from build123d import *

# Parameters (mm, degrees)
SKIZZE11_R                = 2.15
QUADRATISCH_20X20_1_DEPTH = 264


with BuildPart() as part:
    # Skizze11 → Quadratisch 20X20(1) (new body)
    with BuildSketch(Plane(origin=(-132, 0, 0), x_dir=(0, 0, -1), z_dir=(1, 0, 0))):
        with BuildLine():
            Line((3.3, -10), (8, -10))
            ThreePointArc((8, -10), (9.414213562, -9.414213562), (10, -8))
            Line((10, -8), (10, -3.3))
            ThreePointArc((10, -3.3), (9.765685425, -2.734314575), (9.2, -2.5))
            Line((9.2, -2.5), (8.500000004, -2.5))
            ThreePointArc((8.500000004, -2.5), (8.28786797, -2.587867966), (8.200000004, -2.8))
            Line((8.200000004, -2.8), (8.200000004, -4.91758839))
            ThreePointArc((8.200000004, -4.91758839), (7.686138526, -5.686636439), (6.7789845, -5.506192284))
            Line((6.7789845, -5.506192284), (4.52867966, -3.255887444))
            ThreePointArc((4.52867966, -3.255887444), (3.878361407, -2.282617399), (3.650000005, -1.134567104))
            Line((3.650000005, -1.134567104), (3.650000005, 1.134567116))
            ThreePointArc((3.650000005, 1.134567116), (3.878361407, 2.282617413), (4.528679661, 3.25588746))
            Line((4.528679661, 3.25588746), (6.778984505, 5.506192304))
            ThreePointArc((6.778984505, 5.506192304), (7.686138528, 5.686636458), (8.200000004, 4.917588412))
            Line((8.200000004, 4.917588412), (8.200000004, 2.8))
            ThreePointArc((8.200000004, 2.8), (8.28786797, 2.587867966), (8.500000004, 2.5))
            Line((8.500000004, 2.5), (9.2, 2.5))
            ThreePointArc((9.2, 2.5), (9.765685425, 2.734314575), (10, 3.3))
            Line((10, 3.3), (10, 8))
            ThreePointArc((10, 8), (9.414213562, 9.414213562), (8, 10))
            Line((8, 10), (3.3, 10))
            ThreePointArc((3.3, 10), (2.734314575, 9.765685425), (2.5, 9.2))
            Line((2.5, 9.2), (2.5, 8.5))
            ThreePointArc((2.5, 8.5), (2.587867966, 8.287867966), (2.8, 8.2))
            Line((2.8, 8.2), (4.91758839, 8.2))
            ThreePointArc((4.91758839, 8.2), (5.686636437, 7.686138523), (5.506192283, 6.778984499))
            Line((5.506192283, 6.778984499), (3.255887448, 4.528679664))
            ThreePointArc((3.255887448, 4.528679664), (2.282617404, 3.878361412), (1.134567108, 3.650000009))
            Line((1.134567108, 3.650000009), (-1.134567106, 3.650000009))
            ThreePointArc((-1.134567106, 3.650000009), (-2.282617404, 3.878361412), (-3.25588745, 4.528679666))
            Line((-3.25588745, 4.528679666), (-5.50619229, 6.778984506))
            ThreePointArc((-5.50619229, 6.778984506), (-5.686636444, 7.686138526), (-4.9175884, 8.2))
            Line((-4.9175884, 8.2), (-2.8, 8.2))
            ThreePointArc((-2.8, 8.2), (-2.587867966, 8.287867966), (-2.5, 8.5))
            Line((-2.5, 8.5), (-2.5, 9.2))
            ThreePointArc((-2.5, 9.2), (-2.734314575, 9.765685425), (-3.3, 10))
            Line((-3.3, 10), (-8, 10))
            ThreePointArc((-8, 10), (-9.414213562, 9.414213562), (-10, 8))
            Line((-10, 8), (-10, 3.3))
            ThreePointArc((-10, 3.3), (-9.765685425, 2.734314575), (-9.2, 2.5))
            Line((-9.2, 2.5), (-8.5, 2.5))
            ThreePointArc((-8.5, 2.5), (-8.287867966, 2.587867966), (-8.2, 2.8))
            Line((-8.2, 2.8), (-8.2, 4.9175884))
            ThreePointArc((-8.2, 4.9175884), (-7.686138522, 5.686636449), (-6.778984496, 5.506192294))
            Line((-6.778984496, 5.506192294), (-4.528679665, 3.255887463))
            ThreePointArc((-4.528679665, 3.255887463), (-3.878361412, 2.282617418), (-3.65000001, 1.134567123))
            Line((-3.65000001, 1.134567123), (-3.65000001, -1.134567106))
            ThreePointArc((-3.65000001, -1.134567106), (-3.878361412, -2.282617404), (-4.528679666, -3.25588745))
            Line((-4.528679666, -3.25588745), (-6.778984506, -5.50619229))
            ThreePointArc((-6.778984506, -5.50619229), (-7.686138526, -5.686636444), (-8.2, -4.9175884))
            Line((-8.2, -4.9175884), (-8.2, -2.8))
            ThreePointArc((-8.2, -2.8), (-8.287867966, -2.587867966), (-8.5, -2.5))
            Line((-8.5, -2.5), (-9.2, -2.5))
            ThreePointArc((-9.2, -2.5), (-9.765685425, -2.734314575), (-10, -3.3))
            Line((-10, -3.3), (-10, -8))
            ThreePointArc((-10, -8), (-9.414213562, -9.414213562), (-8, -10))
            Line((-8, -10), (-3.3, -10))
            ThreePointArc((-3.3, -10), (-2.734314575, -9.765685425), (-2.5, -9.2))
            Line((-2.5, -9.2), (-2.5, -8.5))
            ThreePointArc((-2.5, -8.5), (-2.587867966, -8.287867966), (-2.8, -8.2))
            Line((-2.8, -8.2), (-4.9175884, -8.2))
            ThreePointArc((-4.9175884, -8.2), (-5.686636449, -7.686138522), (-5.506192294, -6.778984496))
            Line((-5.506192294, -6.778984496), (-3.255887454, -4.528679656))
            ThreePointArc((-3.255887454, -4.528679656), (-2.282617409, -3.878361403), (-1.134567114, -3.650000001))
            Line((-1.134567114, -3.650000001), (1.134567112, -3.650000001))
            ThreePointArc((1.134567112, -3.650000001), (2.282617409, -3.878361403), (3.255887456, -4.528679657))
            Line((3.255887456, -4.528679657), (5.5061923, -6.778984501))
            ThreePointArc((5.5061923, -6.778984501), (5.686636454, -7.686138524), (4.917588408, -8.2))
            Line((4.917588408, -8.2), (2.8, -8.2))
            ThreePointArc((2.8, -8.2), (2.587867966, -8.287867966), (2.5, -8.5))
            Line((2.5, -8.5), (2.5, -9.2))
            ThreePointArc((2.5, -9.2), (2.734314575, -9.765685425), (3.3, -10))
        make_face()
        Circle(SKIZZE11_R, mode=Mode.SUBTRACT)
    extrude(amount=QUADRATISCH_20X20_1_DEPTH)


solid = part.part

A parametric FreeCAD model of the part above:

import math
import FreeCAD as App
import Part
import Sketcher

V = App.Vector

doc = App.newDocument("Part")
params = doc.addObject("Spreadsheet::Sheet", "Params")
for row, (alias, value) in enumerate([
    ("sketch1_radius", "2 mm"),
    ("sketch1_radius2", "3 mm"),
    ("sketch1_diameter", "4.3 mm"),
    ("sketch1_radius3", "0.8 mm"),
    ("sketch1_radius4", "0.3 mm"),
    ("pad1_length", "264 mm"),
], start=1):
    params.set(f"A{row}", alias)
    params.set(f"B{row}", "=" + value)
    params.setAlias(f"B{row}", alias)

body = doc.addObject("PartDesign::Body", "Body")

# Sketch on YZ plane
sketch1 = body.newObject("Sketcher::SketchObject", "Sketch")
sketch1.AttachmentSupport = (doc.getObject("YZ_Plane"), [""])
sketch1.MapMode = "FlatFace"
sketch1.AttachmentOffset = App.Placement(V(0, 0, -132), App.Rotation())
sketch1.addGeometry([
    Part.LineSegment(V(-10, -3.3, 0), V(-10, -8, 0)),  # 0
    Part.ArcOfCircle(Part.Circle(V(-8, -8, 0), V(0, 0, 1), 2), math.radians(-180), math.radians(-90)),  # 1
    Part.LineSegment(V(-8, -10, 0), V(-3.3, -10, 0)),  # 2
    Part.ArcOfCircle(Part.Circle(V(-3.3, -9.2, 0), V(0, 0, 1), 0.8), math.radians(-90), math.radians(0)),  # 3
    Part.LineSegment(V(-2.5, -9.2, 0), V(-2.5, -8.5, 0)),  # 4
    Part.ArcOfCircle(Part.Circle(V(-2.8, -8.5, 0), V(0, 0, 1), 0.3), math.radians(0), math.radians(90)),  # 5
    Part.LineSegment(V(-2.8, -8.2, 0), V(-4.917588, -8.2, 0)),  # 6
    Part.ArcOfCircle(Part.Circle(V(-4.917588, -7.367588, 0), V(0, 0, 1), 0.832412), math.radians(135), math.radians(270)),  # 7
    Part.LineSegment(V(-5.506192, -6.778984, 0), V(-3.255887, -4.52868, 0)),  # 8
    Part.ArcOfCircle(Part.Circle(V(-1.134567, -6.65, 0), V(0, 0, 1), 3), math.radians(90), math.radians(135)),  # 9
    Part.LineSegment(V(-1.134567, -3.65, 0), V(1.134567, -3.65, 0)),  # 10
    Part.ArcOfCircle(Part.Circle(V(1.134567, -6.65, 0), V(0, 0, 1), 3), math.radians(45), math.radians(90)),  # 11
    Part.LineSegment(V(3.255887, -4.52868, 0), V(5.506192, -6.778985, 0)),  # 12
    Part.ArcOfCircle(Part.Circle(V(4.917588, -7.367588, 0), V(0, 0, 1), 0.832412), math.radians(-90), math.radians(45)),  # 13
    Part.LineSegment(V(4.917588, -8.2, 0), V(2.8, -8.2, 0)),  # 14
    Part.ArcOfCircle(Part.Circle(V(2.8, -8.5, 0), V(0, 0, 1), 0.3), math.radians(90), math.radians(180)),  # 15
    Part.LineSegment(V(2.5, -8.5, 0), V(2.5, -9.2, 0)),  # 16
    Part.ArcOfCircle(Part.Circle(V(3.3, -9.2, 0), V(0, 0, 1), 0.8), math.radians(180), math.radians(270)),  # 17
    Part.LineSegment(V(3.3, -10, 0), V(8, -10, 0)),  # 18
    Part.ArcOfCircle(Part.Circle(V(8, -8, 0), V(0, 0, 1), 2), math.radians(-90), math.radians(0)),  # 19
    Part.LineSegment(V(10, -8, 0), V(10, -3.3, 0)),  # 20
    Part.ArcOfCircle(Part.Circle(V(9.2, -3.3, 0), V(0, 0, 1), 0.8), math.radians(0), math.radians(90)),  # 21
    Part.LineSegment(V(9.2, -2.5, 0), V(8.5, -2.5, 0)),  # 22
    Part.ArcOfCircle(Part.Circle(V(8.5, -2.8, 0), V(0, 0, 1), 0.3), math.radians(90), math.radians(180)),  # 23
    Part.LineSegment(V(8.2, -2.8, 0), V(8.2, -4.917588, 0)),  # 24
    Part.ArcOfCircle(Part.Circle(V(7.367588, -4.917588, 0), V(0, 0, 1), 0.832412), math.radians(-135), math.radians(0)),  # 25
    Part.LineSegment(V(6.778984, -5.506192, 0), V(4.52868, -3.255887, 0)),  # 26
    Part.ArcOfCircle(Part.Circle(V(6.65, -1.134567, 0), V(0, 0, 1), 3), math.radians(-180), math.radians(-135)),  # 27
    Part.LineSegment(V(3.65, -1.134567, 0), V(3.65, 1.134567, 0)),  # 28
    Part.ArcOfCircle(Part.Circle(V(6.65, 1.134567, 0), V(0, 0, 1), 3), math.radians(135), math.radians(180)),  # 29
    Part.LineSegment(V(4.52868, 3.255887, 0), V(6.778985, 5.506192, 0)),  # 30
    Part.ArcOfCircle(Part.Circle(V(7.367588, 4.917588, 0), V(0, 0, 1), 0.832412), math.radians(0), math.radians(135)),  # 31
    Part.LineSegment(V(8.2, 4.917588, 0), V(8.2, 2.8, 0)),  # 32
    Part.ArcOfCircle(Part.Circle(V(8.5, 2.8, 0), V(0, 0, 1), 0.3), math.radians(-180), math.radians(-90)),  # 33
    Part.LineSegment(V(8.5, 2.5, 0), V(9.2, 2.5, 0)),  # 34
    Part.ArcOfCircle(Part.Circle(V(9.2, 3.3, 0), V(0, 0, 1), 0.8), math.radians(-90), math.radians(0)),  # 35
    Part.LineSegment(V(10, 3.3, 0), V(10, 8, 0)),  # 36
    Part.ArcOfCircle(Part.Circle(V(8, 8, 0), V(0, 0, 1), 2), math.radians(0), math.radians(90)),  # 37
    Part.LineSegment(V(8, 10, 0), V(3.3, 10, 0)),  # 38
    Part.ArcOfCircle(Part.Circle(V(3.3, 9.2, 0), V(0, 0, 1), 0.8), math.radians(90), math.radians(180)),  # 39
    Part.LineSegment(V(2.5, 9.2, 0), V(2.5, 8.5, 0)),  # 40
    Part.ArcOfCircle(Part.Circle(V(2.8, 8.5, 0), V(0, 0, 1), 0.3), math.radians(-180), math.radians(-90)),  # 41
    Part.LineSegment(V(2.8, 8.2, 0), V(4.917588, 8.2, 0)),  # 42
    Part.ArcOfCircle(Part.Circle(V(4.917588, 7.367588, 0), V(0, 0, 1), 0.832412), math.radians(-45), math.radians(90)),  # 43
    Part.LineSegment(V(5.506192, 6.778984, 0), V(3.255887, 4.52868, 0)),  # 44
    Part.ArcOfCircle(Part.Circle(V(1.134567, 6.65, 0), V(0, 0, 1), 3), math.radians(-90), math.radians(-45)),  # 45
    Part.LineSegment(V(1.134567, 3.65, 0), V(-1.134567, 3.65, 0)),  # 46
    Part.ArcOfCircle(Part.Circle(V(-1.134567, 6.65, 0), V(0, 0, 1), 3), math.radians(-135), math.radians(-90)),  # 47
    Part.LineSegment(V(-3.255887, 4.52868, 0), V(-5.506192, 6.778985, 0)),  # 48
    Part.ArcOfCircle(Part.Circle(V(-4.917588, 7.367588, 0), V(0, 0, 1), 0.832412), math.radians(90), math.radians(225)),  # 49
    Part.LineSegment(V(-4.917588, 8.2, 0), V(-2.8, 8.2, 0)),  # 50
    Part.ArcOfCircle(Part.Circle(V(-2.8, 8.5, 0), V(0, 0, 1), 0.3), math.radians(-90), math.radians(0)),  # 51
    Part.LineSegment(V(-2.5, 8.5, 0), V(-2.5, 9.2, 0)),  # 52
    Part.ArcOfCircle(Part.Circle(V(-3.3, 9.2, 0), V(0, 0, 1), 0.8), math.radians(0), math.radians(90)),  # 53
    Part.LineSegment(V(-3.3, 10, 0), V(-8, 10, 0)),  # 54
    Part.ArcOfCircle(Part.Circle(V(-8, 8, 0), V(0, 0, 1), 2), math.radians(90), math.radians(180)),  # 55
    Part.LineSegment(V(-10, 8, 0), V(-10, 3.3, 0)),  # 56
    Part.ArcOfCircle(Part.Circle(V(-9.2, 3.3, 0), V(0, 0, 1), 0.8), math.radians(180), math.radians(270)),  # 57
    Part.LineSegment(V(-9.2, 2.5, 0), V(-8.5, 2.5, 0)),  # 58
    Part.ArcOfCircle(Part.Circle(V(-8.5, 2.8, 0), V(0, 0, 1), 0.3), math.radians(-90), math.radians(0)),  # 59
    Part.LineSegment(V(-8.2, 2.8, 0), V(-8.2, 4.917588, 0)),  # 60
    Part.ArcOfCircle(Part.Circle(V(-7.367588, 4.917588, 0), V(0, 0, 1), 0.832412), math.radians(45), math.radians(180)),  # 61
    Part.LineSegment(V(-6.778984, 5.506192, 0), V(-4.52868, 3.255887, 0)),  # 62
    Part.ArcOfCircle(Part.Circle(V(-6.65, 1.134567, 0), V(0, 0, 1), 3), math.radians(0), math.radians(45)),  # 63
    Part.LineSegment(V(-3.65, 1.134567, 0), V(-3.65, -1.134567, 0)),  # 64
    Part.ArcOfCircle(Part.Circle(V(-6.65, -1.134567, 0), V(0, 0, 1), 3), math.radians(-45), math.radians(0)),  # 65
    Part.LineSegment(V(-4.52868, -3.255887, 0), V(-6.778985, -5.506192, 0)),  # 66
    Part.ArcOfCircle(Part.Circle(V(-7.367588, -4.917588, 0), V(0, 0, 1), 0.832412), math.radians(180), math.radians(315)),  # 67
    Part.LineSegment(V(-8.2, -4.917588, 0), V(-8.2, -2.8, 0)),  # 68
    Part.ArcOfCircle(Part.Circle(V(-8.5, -2.8, 0), V(0, 0, 1), 0.3), math.radians(0), math.radians(90)),  # 69
    Part.LineSegment(V(-8.5, -2.5, 0), V(-9.2, -2.5, 0)),  # 70
    Part.ArcOfCircle(Part.Circle(V(-9.2, -3.3, 0), V(0, 0, 1), 0.8), math.radians(90), math.radians(180)),  # 71
    Part.Circle(V(0, 0, 0), V(0, 0, 1), 2.15),  # 72
], False)
sketch1.addConstraint([
    Sketcher.Constraint("Tangent", 0, 2, 1, 1),
    Sketcher.Constraint("Tangent", 1, 2, 2, 1),
    Sketcher.Constraint("Tangent", 2, 2, 3, 1),
    Sketcher.Constraint("Tangent", 3, 2, 4, 1),
    Sketcher.Constraint("Tangent", 4, 2, 5, 1),
    Sketcher.Constraint("Tangent", 5, 2, 6, 1),
    Sketcher.Constraint("Tangent", 6, 2, 7, 2),
    Sketcher.Constraint("Tangent", 7, 1, 8, 1),
    Sketcher.Constraint("Tangent", 8, 2, 9, 2),
    Sketcher.Constraint("Tangent", 9, 1, 10, 1),
    Sketcher.Constraint("Tangent", 10, 2, 11, 2),
    Sketcher.Constraint("Tangent", 11, 1, 12, 1),
    Sketcher.Constraint("Tangent", 12, 2, 13, 2),
    Sketcher.Constraint("Tangent", 13, 1, 14, 1),
    Sketcher.Constraint("Tangent", 14, 2, 15, 1),
    Sketcher.Constraint("Tangent", 15, 2, 16, 1),
    Sketcher.Constraint("Tangent", 16, 2, 17, 1),
    Sketcher.Constraint("Tangent", 17, 2, 18, 1),
    Sketcher.Constraint("Tangent", 18, 2, 19, 1),
    Sketcher.Constraint("Tangent", 19, 2, 20, 1),
    Sketcher.Constraint("Tangent", 20, 2, 21, 1),
    Sketcher.Constraint("Tangent", 21, 2, 22, 1),
    Sketcher.Constraint("Tangent", 22, 2, 23, 1),
    Sketcher.Constraint("Tangent", 23, 2, 24, 1),
    Sketcher.Constraint("Tangent", 24, 2, 25, 2),
    Sketcher.Constraint("Tangent", 25, 1, 26, 1),
    Sketcher.Constraint("Tangent", 26, 2, 27, 2),
    Sketcher.Constraint("Tangent", 27, 1, 28, 1),
    Sketcher.Constraint("Tangent", 28, 2, 29, 2),
    Sketcher.Constraint("Tangent", 29, 1, 30, 1),
    Sketcher.Constraint("Tangent", 30, 2, 31, 2),
    Sketcher.Constraint("Tangent", 31, 1, 32, 1),
    Sketcher.Constraint("Tangent", 32, 2, 33, 1),
    Sketcher.Constraint("Tangent", 33, 2, 34, 1),
    Sketcher.Constraint("Tangent", 34, 2, 35, 1),
    Sketcher.Constraint("Tangent", 35, 2, 36, 1),
    Sketcher.Constraint("Tangent", 36, 2, 37, 1),
    Sketcher.Constraint("Tangent", 37, 2, 38, 1),
    Sketcher.Constraint("Tangent", 38, 2, 39, 1),
    Sketcher.Constraint("Tangent", 39, 2, 40, 1),
    Sketcher.Constraint("Tangent", 40, 2, 41, 1),
    Sketcher.Constraint("Tangent", 41, 2, 42, 1),
    Sketcher.Constraint("Tangent", 42, 2, 43, 2),
    Sketcher.Constraint("Tangent", 43, 1, 44, 1),
    Sketcher.Constraint("Tangent", 44, 2, 45, 2),
    Sketcher.Constraint("Tangent", 45, 1, 46, 1),
    Sketcher.Constraint("Tangent", 46, 2, 47, 2),
    Sketcher.Constraint("Tangent", 47, 1, 48, 1),
    Sketcher.Constraint("Tangent", 48, 2, 49, 2),
    Sketcher.Constraint("Tangent", 49, 1, 50, 1),
    Sketcher.Constraint("Tangent", 50, 2, 51, 1),
    Sketcher.Constraint("Tangent", 51, 2, 52, 1),
    Sketcher.Constraint("Tangent", 52, 2, 53, 1),
    Sketcher.Constraint("Tangent", 53, 2, 54, 1),
    Sketcher.Constraint("Tangent", 54, 2, 55, 1),
    Sketcher.Constraint("Tangent", 55, 2, 56, 1),
    Sketcher.Constraint("Tangent", 56, 2, 57, 1),
    Sketcher.Constraint("Tangent", 57, 2, 58, 1),
    Sketcher.Constraint("Tangent", 58, 2, 59, 1),
    Sketcher.Constraint("Tangent", 59, 2, 60, 1),
    Sketcher.Constraint("Tangent", 60, 2, 61, 2),
    Sketcher.Constraint("Tangent", 61, 1, 62, 1),
    Sketcher.Constraint("Tangent", 62, 2, 63, 2),
    Sketcher.Constraint("Tangent", 63, 1, 64, 1),
    Sketcher.Constraint("Tangent", 64, 2, 65, 2),
    Sketcher.Constraint("Tangent", 65, 1, 66, 1),
    Sketcher.Constraint("Tangent", 66, 2, 67, 2),
    Sketcher.Constraint("Tangent", 67, 1, 68, 1),
    Sketcher.Constraint("Tangent", 68, 2, 69, 1),
    Sketcher.Constraint("Tangent", 69, 2, 70, 1),
    Sketcher.Constraint("Tangent", 70, 2, 71, 1),
    Sketcher.Constraint("Tangent", 71, 2, 0, 1),
    Sketcher.Constraint("Vertical", 0),
    Sketcher.Constraint("Horizontal", 2),
    Sketcher.Constraint("Vertical", 4),
    Sketcher.Constraint("Horizontal", 6),
    Sketcher.Constraint("Horizontal", 10),
    Sketcher.Constraint("Horizontal", 14),
    Sketcher.Constraint("Vertical", 16),
    Sketcher.Constraint("Horizontal", 18),
    Sketcher.Constraint("Vertical", 20),
    Sketcher.Constraint("Horizontal", 22),
    Sketcher.Constraint("Vertical", 24),
    Sketcher.Constraint("Vertical", 28),
    Sketcher.Constraint("Vertical", 32),
    Sketcher.Constraint("Horizontal", 34),
    Sketcher.Constraint("Vertical", 36),
    Sketcher.Constraint("Horizontal", 38),
    Sketcher.Constraint("Vertical", 40),
    Sketcher.Constraint("Horizontal", 42),
    Sketcher.Constraint("Horizontal", 46),
    Sketcher.Constraint("Horizontal", 50),
    Sketcher.Constraint("Vertical", 52),
    Sketcher.Constraint("Horizontal", 54),
    Sketcher.Constraint("Vertical", 56),
    Sketcher.Constraint("Horizontal", 58),
    Sketcher.Constraint("Vertical", 60),
    Sketcher.Constraint("Vertical", 64),
    Sketcher.Constraint("Vertical", 68),
    Sketcher.Constraint("Horizontal", 70),
    Sketcher.Constraint("Coincident", 72, 3, -1, 1),
    Sketcher.Constraint("Equal", 9, 11),
    Sketcher.Constraint("Equal", 7, 13),
    Sketcher.Constraint("Equal", 5, 15),
    Sketcher.Constraint("Equal", 3, 17),
    Sketcher.Constraint("Equal", 1, 19),
    Sketcher.Constraint("Equal", 17, 21),
    Sketcher.Constraint("Equal", 15, 23),
    Sketcher.Constraint("Equal", 13, 25),
    Sketcher.Constraint("Equal", 11, 27),
    Sketcher.Constraint("Equal", 27, 29),
    Sketcher.Constraint("Equal", 25, 31),
    Sketcher.Constraint("Equal", 23, 33),
    Sketcher.Constraint("Equal", 21, 35),
    Sketcher.Constraint("Equal", 19, 37),
    Sketcher.Constraint("Equal", 35, 39),
    Sketcher.Constraint("Equal", 33, 41),
    Sketcher.Constraint("Equal", 31, 43),
    Sketcher.Constraint("Equal", 29, 45),
    Sketcher.Constraint("Equal", 45, 47),
    Sketcher.Constraint("Equal", 43, 49),
    Sketcher.Constraint("Equal", 41, 51),
    Sketcher.Constraint("Equal", 39, 53),
    Sketcher.Constraint("Equal", 37, 55),
    Sketcher.Constraint("Equal", 53, 57),
    Sketcher.Constraint("Equal", 51, 59),
    Sketcher.Constraint("Equal", 49, 61),
    Sketcher.Constraint("Equal", 47, 63),
    Sketcher.Constraint("Equal", 63, 65),
    Sketcher.Constraint("Equal", 61, 67),
    Sketcher.Constraint("Equal", 59, 69),
    Sketcher.Constraint("Equal", 57, 71),
    Sketcher.Constraint("Symmetric", 1, 3, 37, 3, -1, 1),
    Sketcher.Constraint("Symmetric", 5, 3, 41, 3, -1, 1),
    Sketcher.Constraint("Symmetric", 9, 3, 45, 3, -1, 1),
    Sketcher.Constraint("Symmetric", 13, 3, 49, 3, -1, 1),
    Sketcher.Constraint("Symmetric", 17, 3, 53, 3, -1, 1),
    Sketcher.Constraint("Symmetric", 21, 3, 57, 3, -1, 1),
    Sketcher.Constraint("Symmetric", 25, 3, 61, 3, -1, 1),
    Sketcher.Constraint("Symmetric", 27, 3, 63, 3, -1, 1),
    Sketcher.Constraint("Symmetric", 31, 3, 67, 3, -1, 1),
    Sketcher.Constraint("Symmetric", 7, 3, 13, 3, -2),
    Sketcher.Constraint("Symmetric", 3, 3, 17, 3, -2),
    Sketcher.Constraint("Symmetric", 35, 3, 57, 3, -2),
    Sketcher.Constraint("Symmetric", 31, 3, 61, 3, -2),
    Sketcher.Constraint("Symmetric", 44, 2, 47, 1, -2),
    Sketcher.Constraint("Perpendicular", 8, 12),
    Sketcher.Constraint("Parallel", 12, 26),
    Sketcher.Constraint("Perpendicular", 26, 30),
    Sketcher.Constraint("Perpendicular", 44, 48),
    Sketcher.Constraint("Perpendicular", 62, 66),
    Sketcher.Constraint("Horizontal", 23, 3, 69, 3),
    Sketcher.Constraint("Equal", 54, 0),
    Sketcher.Constraint("Equal", 70, 4),
    Sketcher.Constraint("Equal", 50, 24),
    Sketcher.Constraint("Equal", 46, 28),
    Sketcher.Constraint("Equal", 12, 26),
    Sketcher.Constraint("Radius", 1, 2.0),
    Sketcher.Constraint("Radius", 9, 3.0),
    Sketcher.Constraint("Diameter", 72, 4.3),
    Sketcher.Constraint("Radius", 3, 0.8),
    Sketcher.Constraint("Radius", 5, 0.3),
    Sketcher.Constraint("DistanceX", 2, 1, 2, 2, 4.7),
    Sketcher.Constraint("DistanceX", 22, 2, 22, 1, 0.7),
    Sketcher.Constraint("DistanceX", 1, 3, -1, 1, 8.0),
    Sketcher.Constraint("DistanceY", 9, 3, -1, 1, 6.65),
    Sketcher.Constraint("Radius", 7, 0.832412),
    Sketcher.Constraint("DistanceX", 6, 2, 6, 1, 2.117588),
])
sketch1.setExpression("Constraints[157]", "Params.sketch1_radius")
sketch1.setExpression("Constraints[158]", "Params.sketch1_radius2")
sketch1.setExpression("Constraints[159]", "Params.sketch1_diameter")
sketch1.setExpression("Constraints[160]", "Params.sketch1_radius3")
sketch1.setExpression("Constraints[161]", "Params.sketch1_radius4")
pad1 = body.newObject("PartDesign::Pad", "Pad")
pad1.Profile = sketch1
pad1.setExpression("Length", "Params.pad1_length")

doc.recompute()
